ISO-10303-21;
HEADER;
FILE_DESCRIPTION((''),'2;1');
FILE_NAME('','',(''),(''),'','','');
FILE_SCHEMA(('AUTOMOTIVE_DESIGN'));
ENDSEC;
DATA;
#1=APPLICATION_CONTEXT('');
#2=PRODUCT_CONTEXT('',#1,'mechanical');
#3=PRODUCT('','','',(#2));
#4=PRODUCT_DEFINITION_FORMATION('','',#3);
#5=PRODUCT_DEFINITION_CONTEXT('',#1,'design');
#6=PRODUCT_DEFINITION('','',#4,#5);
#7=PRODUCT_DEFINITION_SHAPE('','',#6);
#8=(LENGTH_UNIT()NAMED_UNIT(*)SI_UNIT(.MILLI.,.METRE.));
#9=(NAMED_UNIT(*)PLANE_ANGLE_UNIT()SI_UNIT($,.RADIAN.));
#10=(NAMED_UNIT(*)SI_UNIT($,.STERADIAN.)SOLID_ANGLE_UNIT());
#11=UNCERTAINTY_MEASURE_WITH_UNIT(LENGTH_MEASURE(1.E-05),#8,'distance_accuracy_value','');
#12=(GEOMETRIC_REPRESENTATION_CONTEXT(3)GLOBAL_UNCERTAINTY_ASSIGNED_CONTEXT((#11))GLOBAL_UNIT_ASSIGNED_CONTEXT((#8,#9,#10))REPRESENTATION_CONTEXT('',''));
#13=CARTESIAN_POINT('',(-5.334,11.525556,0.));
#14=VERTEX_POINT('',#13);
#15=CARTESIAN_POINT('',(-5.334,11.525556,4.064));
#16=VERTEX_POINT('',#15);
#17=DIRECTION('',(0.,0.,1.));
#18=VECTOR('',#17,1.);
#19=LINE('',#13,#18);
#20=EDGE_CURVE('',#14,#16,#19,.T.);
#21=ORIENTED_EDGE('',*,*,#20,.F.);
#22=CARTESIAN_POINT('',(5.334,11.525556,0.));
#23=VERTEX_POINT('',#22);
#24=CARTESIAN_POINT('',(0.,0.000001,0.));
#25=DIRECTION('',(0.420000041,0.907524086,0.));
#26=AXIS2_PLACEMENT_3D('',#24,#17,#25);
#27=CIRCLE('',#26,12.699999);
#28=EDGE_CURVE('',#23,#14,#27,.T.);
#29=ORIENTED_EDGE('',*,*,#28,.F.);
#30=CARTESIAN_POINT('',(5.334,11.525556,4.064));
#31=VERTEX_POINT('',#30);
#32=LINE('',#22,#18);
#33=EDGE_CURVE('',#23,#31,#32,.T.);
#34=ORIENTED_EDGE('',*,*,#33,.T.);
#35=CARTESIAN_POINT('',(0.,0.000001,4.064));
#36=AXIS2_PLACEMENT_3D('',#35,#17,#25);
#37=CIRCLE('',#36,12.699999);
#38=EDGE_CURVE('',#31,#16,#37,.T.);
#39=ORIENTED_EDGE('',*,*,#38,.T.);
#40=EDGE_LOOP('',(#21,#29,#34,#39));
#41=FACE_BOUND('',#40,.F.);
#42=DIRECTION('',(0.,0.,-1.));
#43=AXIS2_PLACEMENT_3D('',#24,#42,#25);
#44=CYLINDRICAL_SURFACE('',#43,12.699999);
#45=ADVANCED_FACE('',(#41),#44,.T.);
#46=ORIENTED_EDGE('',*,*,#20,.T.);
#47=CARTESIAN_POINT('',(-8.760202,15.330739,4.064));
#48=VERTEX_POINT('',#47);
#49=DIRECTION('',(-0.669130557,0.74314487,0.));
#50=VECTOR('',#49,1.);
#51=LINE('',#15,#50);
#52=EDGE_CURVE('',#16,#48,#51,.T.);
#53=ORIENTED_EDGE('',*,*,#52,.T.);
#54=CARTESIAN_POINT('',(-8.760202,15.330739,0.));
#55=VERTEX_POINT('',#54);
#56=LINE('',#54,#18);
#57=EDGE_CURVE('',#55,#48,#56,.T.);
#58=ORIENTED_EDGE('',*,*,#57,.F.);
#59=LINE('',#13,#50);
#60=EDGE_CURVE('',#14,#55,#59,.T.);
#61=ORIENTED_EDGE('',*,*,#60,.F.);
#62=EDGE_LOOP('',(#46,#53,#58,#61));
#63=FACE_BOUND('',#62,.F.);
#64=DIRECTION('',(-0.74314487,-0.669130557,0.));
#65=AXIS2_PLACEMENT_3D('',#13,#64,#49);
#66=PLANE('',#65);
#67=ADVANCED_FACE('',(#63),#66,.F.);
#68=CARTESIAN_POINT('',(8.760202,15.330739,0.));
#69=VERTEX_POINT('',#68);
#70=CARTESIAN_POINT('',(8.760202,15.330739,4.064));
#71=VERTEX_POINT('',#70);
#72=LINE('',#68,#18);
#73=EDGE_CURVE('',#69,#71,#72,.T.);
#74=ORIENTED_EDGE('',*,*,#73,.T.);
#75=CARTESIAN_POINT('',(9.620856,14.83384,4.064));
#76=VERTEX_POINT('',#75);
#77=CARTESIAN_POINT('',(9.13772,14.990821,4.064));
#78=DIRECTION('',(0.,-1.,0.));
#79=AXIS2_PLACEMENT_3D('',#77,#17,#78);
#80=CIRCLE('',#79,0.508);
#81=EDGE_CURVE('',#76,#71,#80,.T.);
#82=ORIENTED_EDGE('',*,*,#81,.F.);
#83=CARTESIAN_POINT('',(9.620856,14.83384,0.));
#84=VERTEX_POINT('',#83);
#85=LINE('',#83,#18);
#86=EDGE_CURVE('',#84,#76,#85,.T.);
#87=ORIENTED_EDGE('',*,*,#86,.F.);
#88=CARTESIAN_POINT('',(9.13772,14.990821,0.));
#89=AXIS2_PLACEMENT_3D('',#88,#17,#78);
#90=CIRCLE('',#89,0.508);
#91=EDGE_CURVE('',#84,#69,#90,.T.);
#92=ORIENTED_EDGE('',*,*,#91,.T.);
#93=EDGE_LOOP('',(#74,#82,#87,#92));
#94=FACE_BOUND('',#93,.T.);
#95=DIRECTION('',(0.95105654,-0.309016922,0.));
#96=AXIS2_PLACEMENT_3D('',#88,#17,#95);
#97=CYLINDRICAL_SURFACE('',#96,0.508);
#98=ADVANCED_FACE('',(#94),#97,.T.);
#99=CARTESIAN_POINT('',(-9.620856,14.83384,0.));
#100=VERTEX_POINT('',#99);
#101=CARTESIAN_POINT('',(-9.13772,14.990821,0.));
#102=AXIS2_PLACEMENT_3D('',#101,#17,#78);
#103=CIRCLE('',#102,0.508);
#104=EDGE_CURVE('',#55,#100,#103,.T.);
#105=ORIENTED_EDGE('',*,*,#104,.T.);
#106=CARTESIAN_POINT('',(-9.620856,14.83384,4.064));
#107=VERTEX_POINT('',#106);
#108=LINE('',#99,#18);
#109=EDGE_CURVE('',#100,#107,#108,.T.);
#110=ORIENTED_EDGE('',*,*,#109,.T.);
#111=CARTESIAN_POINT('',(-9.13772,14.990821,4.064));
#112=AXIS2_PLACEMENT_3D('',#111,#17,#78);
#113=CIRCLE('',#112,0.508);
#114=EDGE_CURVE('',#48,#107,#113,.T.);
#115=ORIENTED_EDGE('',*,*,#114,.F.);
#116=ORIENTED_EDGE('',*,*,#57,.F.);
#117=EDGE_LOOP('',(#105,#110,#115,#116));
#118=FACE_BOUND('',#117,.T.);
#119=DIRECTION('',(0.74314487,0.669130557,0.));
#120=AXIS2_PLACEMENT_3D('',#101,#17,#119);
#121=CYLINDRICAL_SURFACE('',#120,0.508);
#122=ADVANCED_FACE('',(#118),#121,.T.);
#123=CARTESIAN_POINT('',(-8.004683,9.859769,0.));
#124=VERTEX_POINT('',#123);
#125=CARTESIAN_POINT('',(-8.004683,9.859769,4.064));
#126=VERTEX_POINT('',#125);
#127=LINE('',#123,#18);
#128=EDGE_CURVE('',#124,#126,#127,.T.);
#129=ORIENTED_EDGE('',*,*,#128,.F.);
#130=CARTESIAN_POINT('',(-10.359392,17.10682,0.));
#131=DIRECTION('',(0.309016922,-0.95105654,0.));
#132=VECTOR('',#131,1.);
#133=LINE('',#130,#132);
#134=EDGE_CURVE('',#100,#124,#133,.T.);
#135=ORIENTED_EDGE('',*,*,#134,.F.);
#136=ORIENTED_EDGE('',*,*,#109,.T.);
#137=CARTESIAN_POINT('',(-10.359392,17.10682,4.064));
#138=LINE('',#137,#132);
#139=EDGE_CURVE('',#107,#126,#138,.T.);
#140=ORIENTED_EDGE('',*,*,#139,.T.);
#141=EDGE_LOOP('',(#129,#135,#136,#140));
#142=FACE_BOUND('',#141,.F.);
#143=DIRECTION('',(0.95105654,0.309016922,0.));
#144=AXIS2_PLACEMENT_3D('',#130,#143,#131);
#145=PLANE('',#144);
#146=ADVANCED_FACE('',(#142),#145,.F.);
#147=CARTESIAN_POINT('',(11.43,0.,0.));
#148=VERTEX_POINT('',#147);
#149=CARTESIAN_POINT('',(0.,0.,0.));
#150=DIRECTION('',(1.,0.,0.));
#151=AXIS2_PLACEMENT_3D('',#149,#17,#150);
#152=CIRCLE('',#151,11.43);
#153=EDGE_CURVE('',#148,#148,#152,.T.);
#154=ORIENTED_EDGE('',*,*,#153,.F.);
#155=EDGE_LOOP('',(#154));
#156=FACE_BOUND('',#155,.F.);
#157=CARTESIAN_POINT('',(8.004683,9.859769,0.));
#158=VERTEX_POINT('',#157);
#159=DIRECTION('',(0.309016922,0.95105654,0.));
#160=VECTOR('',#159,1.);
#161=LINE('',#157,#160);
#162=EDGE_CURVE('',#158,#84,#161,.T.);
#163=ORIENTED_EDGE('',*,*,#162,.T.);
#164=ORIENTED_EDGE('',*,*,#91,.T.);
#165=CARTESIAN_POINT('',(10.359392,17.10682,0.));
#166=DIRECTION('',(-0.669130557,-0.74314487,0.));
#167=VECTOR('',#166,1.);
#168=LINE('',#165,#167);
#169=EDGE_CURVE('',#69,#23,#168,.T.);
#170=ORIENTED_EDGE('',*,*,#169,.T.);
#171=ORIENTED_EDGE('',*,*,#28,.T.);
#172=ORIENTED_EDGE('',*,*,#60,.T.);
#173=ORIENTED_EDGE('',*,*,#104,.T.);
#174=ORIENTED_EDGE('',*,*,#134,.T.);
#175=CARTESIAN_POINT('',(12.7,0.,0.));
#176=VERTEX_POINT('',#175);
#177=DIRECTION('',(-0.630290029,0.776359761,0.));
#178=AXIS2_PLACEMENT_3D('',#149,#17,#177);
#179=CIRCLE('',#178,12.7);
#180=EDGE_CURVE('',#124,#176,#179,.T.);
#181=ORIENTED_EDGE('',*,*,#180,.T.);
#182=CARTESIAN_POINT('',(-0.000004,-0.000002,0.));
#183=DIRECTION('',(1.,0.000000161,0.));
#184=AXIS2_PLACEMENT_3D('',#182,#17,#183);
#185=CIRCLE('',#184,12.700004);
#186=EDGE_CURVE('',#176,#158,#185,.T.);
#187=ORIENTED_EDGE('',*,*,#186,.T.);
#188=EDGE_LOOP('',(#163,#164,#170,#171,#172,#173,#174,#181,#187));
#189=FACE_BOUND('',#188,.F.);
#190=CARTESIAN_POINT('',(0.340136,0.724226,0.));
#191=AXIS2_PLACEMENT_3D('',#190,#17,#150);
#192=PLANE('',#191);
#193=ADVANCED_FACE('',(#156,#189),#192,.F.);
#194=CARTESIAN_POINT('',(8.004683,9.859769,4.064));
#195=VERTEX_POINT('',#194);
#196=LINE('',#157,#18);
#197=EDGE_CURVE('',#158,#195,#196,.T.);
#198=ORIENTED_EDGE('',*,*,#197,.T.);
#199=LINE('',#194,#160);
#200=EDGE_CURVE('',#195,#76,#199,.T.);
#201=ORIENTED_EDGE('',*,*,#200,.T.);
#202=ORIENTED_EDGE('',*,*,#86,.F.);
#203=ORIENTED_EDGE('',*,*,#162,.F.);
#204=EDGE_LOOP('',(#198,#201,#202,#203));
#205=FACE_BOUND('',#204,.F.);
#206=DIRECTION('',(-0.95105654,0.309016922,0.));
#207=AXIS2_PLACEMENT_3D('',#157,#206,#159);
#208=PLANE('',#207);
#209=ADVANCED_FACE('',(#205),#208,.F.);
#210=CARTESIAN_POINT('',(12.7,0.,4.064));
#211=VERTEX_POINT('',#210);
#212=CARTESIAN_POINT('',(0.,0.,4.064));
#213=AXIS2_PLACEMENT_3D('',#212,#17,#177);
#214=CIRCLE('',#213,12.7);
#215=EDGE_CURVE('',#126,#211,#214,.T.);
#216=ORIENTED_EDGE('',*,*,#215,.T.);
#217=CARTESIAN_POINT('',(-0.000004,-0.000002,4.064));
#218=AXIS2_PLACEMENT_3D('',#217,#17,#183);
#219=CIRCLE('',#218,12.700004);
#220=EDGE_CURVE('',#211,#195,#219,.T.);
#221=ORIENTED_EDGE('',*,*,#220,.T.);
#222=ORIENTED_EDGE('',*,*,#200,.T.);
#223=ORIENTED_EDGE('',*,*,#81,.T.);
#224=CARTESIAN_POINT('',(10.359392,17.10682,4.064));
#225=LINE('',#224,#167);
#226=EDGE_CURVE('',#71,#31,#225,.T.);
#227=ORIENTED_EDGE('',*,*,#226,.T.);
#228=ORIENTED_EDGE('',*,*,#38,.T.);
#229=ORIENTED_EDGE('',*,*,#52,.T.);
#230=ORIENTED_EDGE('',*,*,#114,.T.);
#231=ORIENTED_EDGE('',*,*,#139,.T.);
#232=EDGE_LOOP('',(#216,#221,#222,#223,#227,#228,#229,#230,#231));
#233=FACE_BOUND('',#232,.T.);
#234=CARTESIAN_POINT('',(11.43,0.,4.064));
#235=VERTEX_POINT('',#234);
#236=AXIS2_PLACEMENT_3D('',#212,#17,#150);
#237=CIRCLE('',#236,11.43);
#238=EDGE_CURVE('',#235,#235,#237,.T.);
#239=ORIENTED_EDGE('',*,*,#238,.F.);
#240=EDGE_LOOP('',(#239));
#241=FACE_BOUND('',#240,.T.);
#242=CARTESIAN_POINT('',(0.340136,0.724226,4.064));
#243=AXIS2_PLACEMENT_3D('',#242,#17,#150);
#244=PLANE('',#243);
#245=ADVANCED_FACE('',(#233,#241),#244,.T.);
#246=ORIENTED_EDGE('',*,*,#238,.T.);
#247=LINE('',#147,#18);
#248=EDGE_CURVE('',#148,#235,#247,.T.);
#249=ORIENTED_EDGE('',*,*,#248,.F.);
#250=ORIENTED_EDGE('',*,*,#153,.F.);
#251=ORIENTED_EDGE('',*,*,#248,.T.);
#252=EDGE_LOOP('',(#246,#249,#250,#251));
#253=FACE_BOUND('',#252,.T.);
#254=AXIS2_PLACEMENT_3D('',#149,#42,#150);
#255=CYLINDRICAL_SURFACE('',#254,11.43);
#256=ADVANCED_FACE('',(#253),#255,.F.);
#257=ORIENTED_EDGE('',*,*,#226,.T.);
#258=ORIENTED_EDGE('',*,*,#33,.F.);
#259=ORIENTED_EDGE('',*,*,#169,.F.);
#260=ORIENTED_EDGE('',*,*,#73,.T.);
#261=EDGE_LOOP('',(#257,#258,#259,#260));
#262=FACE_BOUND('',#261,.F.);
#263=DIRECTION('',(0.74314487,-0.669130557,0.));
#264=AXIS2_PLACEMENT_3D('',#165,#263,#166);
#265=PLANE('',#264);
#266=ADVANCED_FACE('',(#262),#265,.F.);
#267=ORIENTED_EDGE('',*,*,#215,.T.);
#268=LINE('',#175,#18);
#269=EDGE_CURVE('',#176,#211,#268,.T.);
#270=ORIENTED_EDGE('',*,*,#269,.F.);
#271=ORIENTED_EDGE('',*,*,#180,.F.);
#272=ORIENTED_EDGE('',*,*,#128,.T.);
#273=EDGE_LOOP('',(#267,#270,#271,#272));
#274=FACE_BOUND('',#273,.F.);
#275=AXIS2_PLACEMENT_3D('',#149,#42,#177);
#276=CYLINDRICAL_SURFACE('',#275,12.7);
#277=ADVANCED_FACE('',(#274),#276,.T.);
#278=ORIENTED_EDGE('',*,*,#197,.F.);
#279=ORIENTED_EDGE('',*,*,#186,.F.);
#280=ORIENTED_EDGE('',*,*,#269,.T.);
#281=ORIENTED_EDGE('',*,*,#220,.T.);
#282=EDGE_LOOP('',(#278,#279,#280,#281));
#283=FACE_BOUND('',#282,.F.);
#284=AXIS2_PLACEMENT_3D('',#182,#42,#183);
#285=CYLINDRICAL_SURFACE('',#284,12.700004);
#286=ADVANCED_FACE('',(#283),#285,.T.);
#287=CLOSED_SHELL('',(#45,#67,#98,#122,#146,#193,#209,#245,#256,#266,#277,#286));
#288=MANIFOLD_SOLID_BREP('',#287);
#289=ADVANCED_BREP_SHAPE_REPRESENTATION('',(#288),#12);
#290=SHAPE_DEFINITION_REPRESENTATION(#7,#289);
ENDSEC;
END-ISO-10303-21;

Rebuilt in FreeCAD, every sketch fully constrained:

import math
import FreeCAD as App
import Part
import Sketcher
from FreeCAD import Vector
Q = App.Units.Quantity


def edges_at(feature, points):
    """Names of the edges that pass closest to the given points."""
    edges = feature.Shape.Edges
    near = lambda p: min(range(len(edges)), key=lambda i: edges[i].distToShape(Part.Vertex(*p))[0])
    return sorted({f"Edge{near(p) + 1}" for p in points})

doc = App.newDocument("Part")
body = doc.addObject("PartDesign::Body", "Body")

sketch1 = body.newObject("Sketcher::SketchObject", "Sketch")
sketch1.AttachmentSupport = (doc.getObject("XY_Plane"), [""])
sketch1.MapMode = "FlatFace"
sketch1.addGeometry([
    Part.ArcOfCircle(Part.Circle(Vector(0, 0, 0), Vector(0, 0, 1), 12.7), math.radians(129.071524), math.radians(359.999999)),
    Part.ArcOfCircle(Part.Circle(Vector(-0.000004, -0.000002, 0), Vector(0, 0, 1), 12.700004), math.radians(0.000009), math.radians(50.928471)),
    Part.LineSegment(Vector(8.004683, 9.859769, 0), Vector(10.359392, 17.10682, 0)),
    Part.LineSegment(Vector(10.359392, 17.10682, 0), Vector(5.334, 11.525556, 0)),
    Part.ArcOfCircle(Part.Circle(Vector(0, 0.000001, 0), Vector(0, 0, 1), 12.699999), math.radians(65.16541), math.radians(114.83459)),
    Part.LineSegment(Vector(-5.334, 11.525556, 0), Vector(-10.359392, 17.10682, 0)),
    Part.LineSegment(Vector(-10.359392, 17.10682, 0), Vector(-8.004683, 9.859769, 0)),
    Part.Circle(Vector(0, 0, 0), Vector(0, 0, 1), 11.43),
], False)
sketch1.addConstraint([
    Sketcher.Constraint("Tangent", 0, 2, 1, 1),
    Sketcher.Constraint("Coincident", 1, 2, 2, 1),
    Sketcher.Constraint("Coincident", 2, 2, 3, 1),
    Sketcher.Constraint("Coincident", 3, 2, 4, 1),
    Sketcher.Constraint("Coincident", 4, 2, 5, 1),
    Sketcher.Constraint("Coincident", 5, 2, 6, 1),
    Sketcher.Constraint("Coincident", 6, 2, 0, 1),
    Sketcher.Constraint("Coincident", 0, 3, -1, 1),
    Sketcher.Constraint("Coincident", 4, 3, -1, 1),
    Sketcher.Constraint("Coincident", 7, 3, -1, 1),
    Sketcher.Constraint("Equal", 0, 4),
    Sketcher.Constraint("Symmetric", 2, 2, 5, 2, -2),
    Sketcher.Constraint("Symmetric", 1, 2, 6, 2, -2),
    Sketcher.Constraint("PointOnObject", 0, 2, -1),
    Sketcher.Constraint("Horizontal", 3, 2, 4, 2),
    Sketcher.Constraint("Diameter", 7, Q("0.9 in")),
    Sketcher.Constraint("Radius", 0, Q("0.5 in")),
    Sketcher.Constraint("Angle", 2, Q("72.000004 deg")),
    Sketcher.Constraint("Angle", 3, Q("-131.999996 deg")),
    Sketcher.Constraint("Distance", 2, Q("0.3 in")),
    Sketcher.Constraint("DistanceX", -1, 1, 3, 2, Q("0.21 in")),
])
pad1 = body.newObject("PartDesign::Pad", "Pad")
pad1.Profile = sketch1
pad1.Length = Q("0.16 in")
doc.recompute()

fillet = body.newObject("PartDesign::Fillet", "Fillet")
fillet.Base = (pad1, edges_at(pad1, [(10.359, 17.107, 2.032), (-10.359, 17.107, 2.032)]))
fillet.Radius = Q("0.02 in")

doc.recompute()
